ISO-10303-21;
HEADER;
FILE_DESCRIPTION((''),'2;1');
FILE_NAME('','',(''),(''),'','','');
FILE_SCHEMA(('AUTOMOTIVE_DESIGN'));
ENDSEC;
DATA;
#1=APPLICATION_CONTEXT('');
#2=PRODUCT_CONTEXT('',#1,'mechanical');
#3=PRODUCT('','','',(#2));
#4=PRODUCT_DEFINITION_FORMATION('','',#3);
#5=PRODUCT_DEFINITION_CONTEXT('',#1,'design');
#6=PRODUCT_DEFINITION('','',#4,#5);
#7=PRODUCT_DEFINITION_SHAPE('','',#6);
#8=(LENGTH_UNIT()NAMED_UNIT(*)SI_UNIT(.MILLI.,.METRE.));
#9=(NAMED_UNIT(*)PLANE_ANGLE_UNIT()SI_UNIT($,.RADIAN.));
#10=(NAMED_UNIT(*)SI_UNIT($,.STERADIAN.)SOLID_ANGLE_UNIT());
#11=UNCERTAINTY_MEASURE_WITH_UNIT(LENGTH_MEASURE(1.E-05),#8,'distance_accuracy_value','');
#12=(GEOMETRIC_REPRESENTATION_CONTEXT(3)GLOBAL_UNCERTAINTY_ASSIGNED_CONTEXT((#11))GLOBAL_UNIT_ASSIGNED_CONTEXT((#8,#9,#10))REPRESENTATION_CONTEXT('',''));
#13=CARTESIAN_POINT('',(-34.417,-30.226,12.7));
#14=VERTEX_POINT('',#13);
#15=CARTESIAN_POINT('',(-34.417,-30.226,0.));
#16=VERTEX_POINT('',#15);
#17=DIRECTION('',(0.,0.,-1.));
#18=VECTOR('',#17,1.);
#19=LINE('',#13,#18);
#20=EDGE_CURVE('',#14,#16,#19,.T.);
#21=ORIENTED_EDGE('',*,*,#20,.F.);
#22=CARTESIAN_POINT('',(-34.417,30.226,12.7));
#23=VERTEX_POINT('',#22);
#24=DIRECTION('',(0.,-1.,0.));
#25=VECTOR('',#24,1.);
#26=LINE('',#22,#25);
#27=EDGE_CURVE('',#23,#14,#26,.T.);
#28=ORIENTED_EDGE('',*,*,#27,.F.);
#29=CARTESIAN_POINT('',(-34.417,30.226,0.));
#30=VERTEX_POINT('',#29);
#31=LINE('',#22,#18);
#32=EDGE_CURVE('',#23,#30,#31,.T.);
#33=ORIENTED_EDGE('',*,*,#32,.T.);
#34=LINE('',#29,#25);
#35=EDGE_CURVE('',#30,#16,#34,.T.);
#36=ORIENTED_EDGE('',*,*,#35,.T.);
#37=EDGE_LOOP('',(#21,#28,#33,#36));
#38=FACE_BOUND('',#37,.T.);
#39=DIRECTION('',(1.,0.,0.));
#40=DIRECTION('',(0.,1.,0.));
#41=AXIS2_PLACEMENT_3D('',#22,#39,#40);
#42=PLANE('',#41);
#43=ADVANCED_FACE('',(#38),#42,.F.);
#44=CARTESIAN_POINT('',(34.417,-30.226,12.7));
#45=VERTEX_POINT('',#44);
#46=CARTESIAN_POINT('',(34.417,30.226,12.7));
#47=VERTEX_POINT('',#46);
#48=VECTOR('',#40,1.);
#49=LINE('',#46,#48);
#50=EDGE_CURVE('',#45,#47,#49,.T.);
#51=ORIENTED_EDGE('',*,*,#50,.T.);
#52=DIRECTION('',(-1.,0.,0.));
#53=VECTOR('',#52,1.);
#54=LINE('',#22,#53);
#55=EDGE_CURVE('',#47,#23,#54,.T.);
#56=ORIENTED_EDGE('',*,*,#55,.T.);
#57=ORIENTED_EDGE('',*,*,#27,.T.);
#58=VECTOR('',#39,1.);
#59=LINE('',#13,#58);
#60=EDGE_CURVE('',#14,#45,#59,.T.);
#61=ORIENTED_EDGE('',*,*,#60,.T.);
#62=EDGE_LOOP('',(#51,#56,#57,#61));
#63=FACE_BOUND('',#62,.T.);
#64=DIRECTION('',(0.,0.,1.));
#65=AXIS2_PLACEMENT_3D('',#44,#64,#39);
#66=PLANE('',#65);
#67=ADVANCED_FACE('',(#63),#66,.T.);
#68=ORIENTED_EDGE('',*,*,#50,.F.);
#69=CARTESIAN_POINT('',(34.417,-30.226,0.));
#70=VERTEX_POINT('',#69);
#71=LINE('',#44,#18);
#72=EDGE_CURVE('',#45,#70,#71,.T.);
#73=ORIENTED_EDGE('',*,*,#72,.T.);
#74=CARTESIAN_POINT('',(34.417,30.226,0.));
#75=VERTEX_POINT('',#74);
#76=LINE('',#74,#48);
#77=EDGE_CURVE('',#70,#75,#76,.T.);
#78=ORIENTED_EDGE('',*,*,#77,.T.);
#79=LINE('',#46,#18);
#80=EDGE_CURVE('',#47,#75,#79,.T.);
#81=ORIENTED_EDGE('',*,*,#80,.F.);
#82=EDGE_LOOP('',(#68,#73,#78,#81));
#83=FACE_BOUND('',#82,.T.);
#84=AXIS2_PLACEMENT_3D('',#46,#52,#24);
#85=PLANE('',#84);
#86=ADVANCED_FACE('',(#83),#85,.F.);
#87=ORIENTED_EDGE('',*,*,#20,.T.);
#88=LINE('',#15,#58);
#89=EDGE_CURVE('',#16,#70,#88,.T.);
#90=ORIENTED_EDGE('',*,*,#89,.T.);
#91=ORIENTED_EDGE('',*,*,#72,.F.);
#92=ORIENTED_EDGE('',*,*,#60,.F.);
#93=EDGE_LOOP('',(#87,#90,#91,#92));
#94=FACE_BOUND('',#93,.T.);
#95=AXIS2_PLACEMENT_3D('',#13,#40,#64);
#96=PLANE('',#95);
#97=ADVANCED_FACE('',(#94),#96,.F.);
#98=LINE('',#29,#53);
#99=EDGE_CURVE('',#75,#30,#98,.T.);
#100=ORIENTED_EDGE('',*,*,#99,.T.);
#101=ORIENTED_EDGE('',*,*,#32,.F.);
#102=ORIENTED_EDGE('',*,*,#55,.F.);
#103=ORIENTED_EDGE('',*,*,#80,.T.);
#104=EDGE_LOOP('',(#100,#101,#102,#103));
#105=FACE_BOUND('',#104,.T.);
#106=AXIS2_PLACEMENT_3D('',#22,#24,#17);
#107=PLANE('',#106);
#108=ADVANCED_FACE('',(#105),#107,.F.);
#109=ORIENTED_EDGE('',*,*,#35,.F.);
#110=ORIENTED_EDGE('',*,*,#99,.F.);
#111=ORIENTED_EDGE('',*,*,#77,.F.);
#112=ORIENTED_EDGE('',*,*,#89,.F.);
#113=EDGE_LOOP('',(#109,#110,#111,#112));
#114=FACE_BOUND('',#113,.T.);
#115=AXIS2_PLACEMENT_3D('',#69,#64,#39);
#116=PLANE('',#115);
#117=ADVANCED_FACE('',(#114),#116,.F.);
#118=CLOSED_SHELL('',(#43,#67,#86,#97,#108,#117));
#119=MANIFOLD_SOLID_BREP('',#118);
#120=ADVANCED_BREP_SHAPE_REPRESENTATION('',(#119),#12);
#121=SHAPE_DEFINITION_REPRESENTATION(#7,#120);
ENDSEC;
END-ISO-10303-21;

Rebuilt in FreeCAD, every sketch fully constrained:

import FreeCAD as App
import Part
import Sketcher
Q = App.Units.Quantity


def add_polygon(sketch, points):
    """Adds a closed chain of lines whose ends are joined by coincident constraints."""
    first, n = sketch.GeometryCount, len(points)
    for a, b in zip(points, points[1:] + points[:1]):
        sketch.addGeometry(Part.LineSegment(App.Vector(*a, 0), App.Vector(*b, 0)), False)
    for i in range(n):
        sketch.addConstraint(Sketcher.Constraint("Coincident", first + i, 2, first + (i + 1) % n, 1))

doc = App.newDocument("Part")
body = doc.addObject("PartDesign::Body", "Body")

sketch1 = doc.addObject("Sketcher::SketchObject", "Sketch")
body.addObject(sketch1)
sketch1.AttachmentSupport = (doc.XY_Plane, [""])
sketch1.MapMode = "FlatFace"
add_polygon(sketch1, [(-34, 30), (-34, -30), (34, -30), (34, 30)])
sketch1.addConstraint(Sketcher.Constraint("Vertical", 0))
sketch1.addConstraint(Sketcher.Constraint("Horizontal", 1))
sketch1.addConstraint(Sketcher.Constraint("Vertical", 2))
sketch1.addConstraint(Sketcher.Constraint("Horizontal", 3))
sketch1.addConstraint(Sketcher.Constraint("Symmetric", 0, 2, 2, 2, -1, 1))
sketch1.addConstraint(Sketcher.Constraint("DistanceX", 1, 1, 1, 2, Q("2.71 in")))
sketch1.addConstraint(Sketcher.Constraint("DistanceY", 0, 2, 0, 1, Q("2.38 in")))
pad1 = doc.addObject("PartDesign::Pad", "Pad")
body.addObject(pad1)
pad1.Profile = sketch1
pad1.Length = Q("0.5 in")

doc.recompute()
